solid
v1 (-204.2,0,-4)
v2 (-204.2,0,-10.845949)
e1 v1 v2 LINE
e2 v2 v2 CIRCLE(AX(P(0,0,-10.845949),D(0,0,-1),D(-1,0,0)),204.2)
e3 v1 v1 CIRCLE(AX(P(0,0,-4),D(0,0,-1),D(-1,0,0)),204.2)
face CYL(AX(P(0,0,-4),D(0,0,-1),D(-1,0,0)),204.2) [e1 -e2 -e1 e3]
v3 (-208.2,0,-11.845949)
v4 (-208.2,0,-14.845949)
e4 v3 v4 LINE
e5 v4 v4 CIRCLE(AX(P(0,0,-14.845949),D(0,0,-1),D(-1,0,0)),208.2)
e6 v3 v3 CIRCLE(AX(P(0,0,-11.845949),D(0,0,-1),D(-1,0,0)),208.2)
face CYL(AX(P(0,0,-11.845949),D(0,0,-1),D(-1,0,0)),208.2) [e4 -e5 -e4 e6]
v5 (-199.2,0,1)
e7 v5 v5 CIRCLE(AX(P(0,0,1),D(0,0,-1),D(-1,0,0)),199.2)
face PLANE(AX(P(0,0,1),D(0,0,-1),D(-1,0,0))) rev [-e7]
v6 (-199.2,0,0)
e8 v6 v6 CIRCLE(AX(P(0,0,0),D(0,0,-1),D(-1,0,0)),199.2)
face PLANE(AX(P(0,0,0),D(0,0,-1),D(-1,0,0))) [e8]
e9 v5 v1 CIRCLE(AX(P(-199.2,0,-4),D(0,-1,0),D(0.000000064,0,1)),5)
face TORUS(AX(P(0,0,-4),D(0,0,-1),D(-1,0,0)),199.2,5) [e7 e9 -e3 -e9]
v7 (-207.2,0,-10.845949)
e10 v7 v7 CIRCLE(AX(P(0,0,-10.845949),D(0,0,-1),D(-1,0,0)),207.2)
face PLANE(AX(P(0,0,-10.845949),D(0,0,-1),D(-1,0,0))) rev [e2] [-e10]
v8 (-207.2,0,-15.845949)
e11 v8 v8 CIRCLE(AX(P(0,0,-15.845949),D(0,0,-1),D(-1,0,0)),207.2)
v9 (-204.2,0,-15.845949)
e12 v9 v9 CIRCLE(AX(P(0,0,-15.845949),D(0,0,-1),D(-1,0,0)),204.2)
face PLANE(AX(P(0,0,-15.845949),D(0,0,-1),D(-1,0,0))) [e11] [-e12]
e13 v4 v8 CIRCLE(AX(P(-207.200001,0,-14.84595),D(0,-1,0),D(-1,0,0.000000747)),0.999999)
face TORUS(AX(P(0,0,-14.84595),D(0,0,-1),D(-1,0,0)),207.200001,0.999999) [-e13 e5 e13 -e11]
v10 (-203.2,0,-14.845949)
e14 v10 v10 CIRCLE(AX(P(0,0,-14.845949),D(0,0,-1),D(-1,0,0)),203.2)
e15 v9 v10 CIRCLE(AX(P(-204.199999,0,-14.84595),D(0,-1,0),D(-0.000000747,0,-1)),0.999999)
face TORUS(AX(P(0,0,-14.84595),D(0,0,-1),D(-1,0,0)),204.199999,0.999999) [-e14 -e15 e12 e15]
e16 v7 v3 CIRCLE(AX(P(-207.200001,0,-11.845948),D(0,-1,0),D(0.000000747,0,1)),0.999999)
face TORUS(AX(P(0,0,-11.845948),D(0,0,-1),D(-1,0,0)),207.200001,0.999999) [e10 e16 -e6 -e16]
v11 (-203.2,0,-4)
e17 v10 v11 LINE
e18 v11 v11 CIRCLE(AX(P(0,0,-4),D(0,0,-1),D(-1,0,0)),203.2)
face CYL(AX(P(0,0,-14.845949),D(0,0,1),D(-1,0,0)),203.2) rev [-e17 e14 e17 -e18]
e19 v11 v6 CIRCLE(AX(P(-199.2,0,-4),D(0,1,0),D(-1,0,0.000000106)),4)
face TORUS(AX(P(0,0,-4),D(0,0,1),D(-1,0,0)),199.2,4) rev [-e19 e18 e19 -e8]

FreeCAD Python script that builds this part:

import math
import FreeCAD as App
import Part
import Sketcher
Q = App.Units.Quantity

doc = App.newDocument("Part")
params = doc.addObject("Spreadsheet::Sheet", "Params")
for row, (alias, value) in enumerate([
    ("sketch1_radius", "5 mm"),
    ("sketch1_radius2", "0.999999 mm"),
    ("sketch1_width", "3 mm"),
    ("sketch1_width2", "199.2 mm"),
    ("revolution_angle", "360 deg"),
], start=1):
    params.set(f"A{row}", alias)
    params.set(f"B{row}", "=" + value)
    params.setAlias(f"B{row}", alias)

body = doc.addObject("PartDesign::Body", "Body")

# Sketch on XZ plane
sketch1 = doc.addObject("Sketcher::SketchObject", "Sketch")
body.addObject(sketch1)
sketch1.AttachmentSupport = (doc.XZ_Plane, [""])
sketch1.MapMode = "FlatFace"
sketch1.addGeometry([
    Part.LineSegment(App.Vector(-199.2, 0, 0), App.Vector(0, 0, 0)),  # 0
    Part.LineSegment(App.Vector(0, 0, 0), App.Vector(0, 1, 0)),  # 1
    Part.LineSegment(App.Vector(0, 1, 0), App.Vector(-199.2, 1, 0)),  # 2
    Part.ArcOfCircle(Part.Circle(App.Vector(-199.2, -4, 0), App.Vector(0, 0, 1), 5), math.radians(89.999996), math.radians(180.000004)),  # 3
    Part.LineSegment(App.Vector(-204.2, -4, 0), App.Vector(-204.2, -10.845949, 0)),  # 4
    Part.LineSegment(App.Vector(-204.2, -10.845949, 0), App.Vector(-207.2, -10.845949, 0)),  # 5
    Part.ArcOfCircle(Part.Circle(App.Vector(-207.200001, -11.845948, 0), App.Vector(0, 0, 1), 0.999999), math.radians(89.999957), math.radians(180.000043)),  # 6
    Part.LineSegment(App.Vector(-208.2, -11.845949, 0), App.Vector(-208.2, -14.845949, 0)),  # 7
    Part.ArcOfCircle(Part.Circle(App.Vector(-207.200001, -14.84595, 0), App.Vector(0, 0, 1), 0.999999), math.radians(179.999957), math.radians(270.000043)),  # 8
    Part.LineSegment(App.Vector(-207.2, -15.845949, 0), App.Vector(-204.2, -15.845949, 0)),  # 9
    Part.ArcOfCircle(Part.Circle(App.Vector(-204.199999, -14.84595, 0), App.Vector(0, 0, 1), 0.999999), math.radians(-90.000043), math.radians(0.000043)),  # 10
    Part.LineSegment(App.Vector(-203.2, -14.845949, 0), App.Vector(-203.2, -4, 0)),  # 11
    Part.ArcOfCircle(Part.Circle(App.Vector(-199.2, -4, 0), App.Vector(0, 0, 1), 4), math.radians(90.000006), math.radians(179.999994)),  # 12
], False)
sketch1.addConstraint([
    Sketcher.Constraint("Coincident", 0, 2, 1, 1),
    Sketcher.Constraint("Coincident", 1, 2, 2, 1),
    Sketcher.Constraint("Tangent", 2, 2, 3, 1),
    Sketcher.Constraint("Tangent", 3, 2, 4, 1),
    Sketcher.Constraint("Coincident", 4, 2, 5, 1),
    Sketcher.Constraint("Tangent", 5, 2, 6, 1),
    Sketcher.Constraint("Tangent", 6, 2, 7, 1),
    Sketcher.Constraint("Tangent", 7, 2, 8, 1),
    Sketcher.Constraint("Tangent", 8, 2, 9, 1),
    Sketcher.Constraint("Tangent", 9, 2, 10, 1),
    Sketcher.Constraint("Tangent", 10, 2, 11, 1),
    Sketcher.Constraint("Tangent", 11, 2, 12, 2),
    Sketcher.Constraint("Tangent", 12, 1, 0, 1),
    Sketcher.Constraint("Horizontal", 0),
    Sketcher.Constraint("Vertical", 1),
    Sketcher.Constraint("Horizontal", 2),
    Sketcher.Constraint("Vertical", 4),
    Sketcher.Constraint("Horizontal", 5),
    Sketcher.Constraint("Vertical", 7),
    Sketcher.Constraint("Horizontal", 9),
    Sketcher.Constraint("Vertical", 11),
    Sketcher.Constraint("Coincident", 0, 2, -1, 1),
    Sketcher.Constraint("Coincident", 12, 3, 3, 3),
    Sketcher.Constraint("Equal", 6, 8),
    Sketcher.Constraint("Equal", 8, 10),
    Sketcher.Constraint("Vertical", 10, 3, 3, 2),
    Sketcher.Constraint("Equal", 9, 7),
    Sketcher.Constraint("Radius", 3, Q("5 mm")),
    Sketcher.Constraint("Radius", 6, Q("0.999999 mm")),
    Sketcher.Constraint("DistanceX", 5, 2, 5, 1, Q("3 mm")),
    Sketcher.Constraint("DistanceX", 0, 1, 0, 2, Q("199.2 mm")),
    Sketcher.Constraint("DistanceY", 4, 2, 4, 1, Q("6.845949 mm")),
])
sketch1.setExpression("Constraints[27]", "Params.sketch1_radius")
sketch1.setExpression("Constraints[28]", "Params.sketch1_radius2")
sketch1.setExpression("Constraints[29]", "Params.sketch1_width")
sketch1.setExpression("Constraints[30]", "Params.sketch1_width2")
revolution = doc.addObject("PartDesign::Revolution", "Revolution")
body.addObject(revolution)
revolution.Profile = sketch1
revolution.ReferenceAxis = (sketch1, ["V_Axis"])
revolution.setExpression("Angle", "Params.revolution_angle")

doc.recompute()
